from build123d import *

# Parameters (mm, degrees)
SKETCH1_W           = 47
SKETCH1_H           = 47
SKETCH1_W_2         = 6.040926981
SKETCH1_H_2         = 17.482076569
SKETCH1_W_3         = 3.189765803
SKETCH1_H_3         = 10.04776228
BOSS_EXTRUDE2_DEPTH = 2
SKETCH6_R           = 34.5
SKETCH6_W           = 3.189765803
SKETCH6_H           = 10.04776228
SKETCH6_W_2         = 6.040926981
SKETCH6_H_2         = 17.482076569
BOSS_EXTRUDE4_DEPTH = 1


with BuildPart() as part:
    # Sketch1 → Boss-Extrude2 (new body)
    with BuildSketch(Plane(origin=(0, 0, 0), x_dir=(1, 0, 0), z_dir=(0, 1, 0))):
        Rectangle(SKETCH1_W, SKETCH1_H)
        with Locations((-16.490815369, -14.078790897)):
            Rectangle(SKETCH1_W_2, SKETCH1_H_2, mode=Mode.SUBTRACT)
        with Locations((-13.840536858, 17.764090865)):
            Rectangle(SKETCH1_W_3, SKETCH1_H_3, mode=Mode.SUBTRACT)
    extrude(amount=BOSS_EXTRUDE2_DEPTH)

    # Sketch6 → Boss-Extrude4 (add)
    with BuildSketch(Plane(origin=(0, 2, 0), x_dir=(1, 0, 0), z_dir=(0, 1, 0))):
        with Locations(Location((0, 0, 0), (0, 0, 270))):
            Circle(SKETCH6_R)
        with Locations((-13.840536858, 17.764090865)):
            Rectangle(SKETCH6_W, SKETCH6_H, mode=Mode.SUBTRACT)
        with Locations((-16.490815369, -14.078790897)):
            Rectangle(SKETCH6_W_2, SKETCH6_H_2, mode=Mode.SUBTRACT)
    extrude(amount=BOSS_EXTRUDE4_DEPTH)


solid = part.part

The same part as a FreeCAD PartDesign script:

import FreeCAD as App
import Part
import Sketcher

V = App.Vector

doc = App.newDocument("Part")
body = doc.addObject("PartDesign::Body", "Body")

sketch1 = doc.addObject("Sketcher::SketchObject", "Sketch")
body.addObject(sketch1)
sketch1.AttachmentSupport = (doc.XZ_Plane, [""])
sketch1.MapMode = "FlatFace"
sketch1.addGeometry([
    Part.LineSegment(V(-23.5, -23.5, 0), V(-23.5, 23.5, 0)),
    Part.LineSegment(V(-23.5, 23.5, 0), V(23.5, 23.5, 0)),
    Part.LineSegment(V(23.5, 23.5, 0), V(23.5, -23.5, 0)),
    Part.LineSegment(V(23.5, -23.5, 0), V(-23.5, -23.5, 0)),
    Part.LineSegment(V(-13.5, 22.8, 0), V(-19.5, 22.8, 0)),
    Part.LineSegment(V(-19.5, 22.8, 0), V(-19.5, 5.3, 0)),
    Part.LineSegment(V(-19.5, 5.3, 0), V(-13.5, 5.3, 0)),
    Part.LineSegment(V(-13.5, 5.3, 0), V(-13.5, 22.8, 0)),
    Part.LineSegment(V(-12.2, -12.7, 0), V(-15.4, -12.7, 0)),
    Part.LineSegment(V(-15.4, -12.7, 0), V(-15.4, -22.8, 0)),
    Part.LineSegment(V(-15.4, -22.8, 0), V(-12.2, -22.8, 0)),
    Part.LineSegment(V(-12.2, -22.8, 0), V(-12.2, -12.7, 0)),
], False)
sketch1.addConstraint([
    Sketcher.Constraint("Coincident", 0, 2, 1, 1),
    Sketcher.Constraint("Coincident", 1, 2, 2, 1),
    Sketcher.Constraint("Coincident", 2, 2, 3, 1),
    Sketcher.Constraint("Coincident", 3, 2, 0, 1),
    Sketcher.Constraint("Coincident", 4, 2, 5, 1),
    Sketcher.Constraint("Coincident", 5, 2, 6, 1),
    Sketcher.Constraint("Coincident", 6, 2, 7, 1),
    Sketcher.Constraint("Coincident", 7, 2, 4, 1),
    Sketcher.Constraint("Coincident", 8, 2, 9, 1),
    Sketcher.Constraint("Coincident", 9, 2, 10, 1),
    Sketcher.Constraint("Coincident", 10, 2, 11, 1),
    Sketcher.Constraint("Coincident", 11, 2, 8, 1),
    Sketcher.Constraint("Vertical", 0),
    Sketcher.Constraint("Horizontal", 1),
    Sketcher.Constraint("Vertical", 2),
    Sketcher.Constraint("Horizontal", 3),
    Sketcher.Constraint("Horizontal", 4),
    Sketcher.Constraint("Vertical", 5),
    Sketcher.Constraint("Horizontal", 6),
    Sketcher.Constraint("Vertical", 7),
    Sketcher.Constraint("Horizontal", 8),
    Sketcher.Constraint("Vertical", 9),
    Sketcher.Constraint("Horizontal", 10),
    Sketcher.Constraint("Vertical", 11),
    Sketcher.Constraint("Symmetric", 0, 2, 2, 2, -1, 1),
    Sketcher.Constraint("Equal", 3, 0),
    Sketcher.Constraint("DistanceX", 1, 1, 1, 2, 47.0),
    Sketcher.Constraint("DistanceX", 4, 2, 4, 1, 6.040927),
    Sketcher.Constraint("DistanceX", 8, 2, 8, 1, 3.189766),
    Sketcher.Constraint("DistanceY", 5, 2, 5, 1, 17.482077),
    Sketcher.Constraint("DistanceY", 9, 2, 9, 1, 10.047762),
    Sketcher.Constraint("DistanceX", 4, 2, -1, 1, 19.511279),
    Sketcher.Constraint("DistanceY", -1, 1, 4, 2, 22.819829),
    Sketcher.Constraint("DistanceX", 8, 2, -1, 1, 15.43542),
    Sketcher.Constraint("DistanceY", 8, 2, -1, 1, 12.74021),
])
pad1 = doc.addObject("PartDesign::Pad", "Pad")
body.addObject(pad1)
pad1.Profile = sketch1
pad1.Length = 2
pad1.Reversed = True

sketch2 = doc.addObject("Sketcher::SketchObject", "Sketch001")
body.addObject(sketch2)
sketch2.AttachmentSupport = (doc.XZ_Plane, [""])
sketch2.MapMode = "FlatFace"
sketch2.AttachmentOffset = App.Placement(V(0, 0, -2), App.Rotation())
sketch2.addGeometry([
    Part.Circle(V(0, 0, 0), V(0, 0, 1), 34.5),
    Part.LineSegment(V(-13.5, 22.8, 0), V(-19.5, 22.8, 0)),
    Part.LineSegment(V(-19.5, 22.8, 0), V(-19.5, 5.3, 0)),
    Part.LineSegment(V(-19.5, 5.3, 0), V(-13.5, 5.3, 0)),
    Part.LineSegment(V(-13.5, 5.3, 0), V(-13.5, 22.8, 0)),
    Part.LineSegment(V(-12.2, -12.7, 0), V(-15.4, -12.7, 0)),
    Part.LineSegment(V(-15.4, -12.7, 0), V(-15.4, -22.8, 0)),
    Part.LineSegment(V(-15.4, -22.8, 0), V(-12.2, -22.8, 0)),
    Part.LineSegment(V(-12.2, -22.8, 0), V(-12.2, -12.7, 0)),
], False)
sketch2.addConstraint([
    Sketcher.Constraint("Coincident", 1, 2, 2, 1),
    Sketcher.Constraint("Coincident", 2, 2, 3, 1),
    Sketcher.Constraint("Coincident", 3, 2, 4, 1),
    Sketcher.Constraint("Coincident", 4, 2, 1, 1),
    Sketcher.Constraint("Coincident", 5, 2, 6, 1),
    Sketcher.Constraint("Coincident", 6, 2, 7, 1),
    Sketcher.Constraint("Coincident", 7, 2, 8, 1),
    Sketcher.Constraint("Coincident", 8, 2, 5, 1),
    Sketcher.Constraint("Horizontal", 1),
    Sketcher.Constraint("Vertical", 2),
    Sketcher.Constraint("Horizontal", 3),
    Sketcher.Constraint("Vertical", 4),
    Sketcher.Constraint("Horizontal", 5),
    Sketcher.Constraint("Vertical", 6),
    Sketcher.Constraint("Horizontal", 7),
    Sketcher.Constraint("Vertical", 8),
    Sketcher.Constraint("Coincident", 0, 3, -1, 1),
    Sketcher.Constraint("Diameter", 0, 69.0),
    Sketcher.Constraint("DistanceY", 6, 2, 4, 2, 45.607801),
    Sketcher.Constraint("DistanceX", 1, 2, 1, 1, 6.040927),
    Sketcher.Constraint("DistanceX", 5, 2, 5, 1, 3.189766),
    Sketcher.Constraint("DistanceY", 2, 2, 2, 1, 17.482077),
    Sketcher.Constraint("DistanceY", 6, 2, 6, 1, 10.047762),
    Sketcher.Constraint("DistanceX", 1, 2, -1, 1, 19.511279),
    Sketcher.Constraint("DistanceY", -1, 1, 1, 2, 22.819829),
    Sketcher.Constraint("DistanceX", 5, 2, -1, 1, 15.43542),
])
pad2 = doc.addObject("PartDesign::Pad", "Pad001")
body.addObject(pad2)
pad2.Profile = sketch2
pad2.Length = 1
pad2.Reversed = True

doc.recompute()
